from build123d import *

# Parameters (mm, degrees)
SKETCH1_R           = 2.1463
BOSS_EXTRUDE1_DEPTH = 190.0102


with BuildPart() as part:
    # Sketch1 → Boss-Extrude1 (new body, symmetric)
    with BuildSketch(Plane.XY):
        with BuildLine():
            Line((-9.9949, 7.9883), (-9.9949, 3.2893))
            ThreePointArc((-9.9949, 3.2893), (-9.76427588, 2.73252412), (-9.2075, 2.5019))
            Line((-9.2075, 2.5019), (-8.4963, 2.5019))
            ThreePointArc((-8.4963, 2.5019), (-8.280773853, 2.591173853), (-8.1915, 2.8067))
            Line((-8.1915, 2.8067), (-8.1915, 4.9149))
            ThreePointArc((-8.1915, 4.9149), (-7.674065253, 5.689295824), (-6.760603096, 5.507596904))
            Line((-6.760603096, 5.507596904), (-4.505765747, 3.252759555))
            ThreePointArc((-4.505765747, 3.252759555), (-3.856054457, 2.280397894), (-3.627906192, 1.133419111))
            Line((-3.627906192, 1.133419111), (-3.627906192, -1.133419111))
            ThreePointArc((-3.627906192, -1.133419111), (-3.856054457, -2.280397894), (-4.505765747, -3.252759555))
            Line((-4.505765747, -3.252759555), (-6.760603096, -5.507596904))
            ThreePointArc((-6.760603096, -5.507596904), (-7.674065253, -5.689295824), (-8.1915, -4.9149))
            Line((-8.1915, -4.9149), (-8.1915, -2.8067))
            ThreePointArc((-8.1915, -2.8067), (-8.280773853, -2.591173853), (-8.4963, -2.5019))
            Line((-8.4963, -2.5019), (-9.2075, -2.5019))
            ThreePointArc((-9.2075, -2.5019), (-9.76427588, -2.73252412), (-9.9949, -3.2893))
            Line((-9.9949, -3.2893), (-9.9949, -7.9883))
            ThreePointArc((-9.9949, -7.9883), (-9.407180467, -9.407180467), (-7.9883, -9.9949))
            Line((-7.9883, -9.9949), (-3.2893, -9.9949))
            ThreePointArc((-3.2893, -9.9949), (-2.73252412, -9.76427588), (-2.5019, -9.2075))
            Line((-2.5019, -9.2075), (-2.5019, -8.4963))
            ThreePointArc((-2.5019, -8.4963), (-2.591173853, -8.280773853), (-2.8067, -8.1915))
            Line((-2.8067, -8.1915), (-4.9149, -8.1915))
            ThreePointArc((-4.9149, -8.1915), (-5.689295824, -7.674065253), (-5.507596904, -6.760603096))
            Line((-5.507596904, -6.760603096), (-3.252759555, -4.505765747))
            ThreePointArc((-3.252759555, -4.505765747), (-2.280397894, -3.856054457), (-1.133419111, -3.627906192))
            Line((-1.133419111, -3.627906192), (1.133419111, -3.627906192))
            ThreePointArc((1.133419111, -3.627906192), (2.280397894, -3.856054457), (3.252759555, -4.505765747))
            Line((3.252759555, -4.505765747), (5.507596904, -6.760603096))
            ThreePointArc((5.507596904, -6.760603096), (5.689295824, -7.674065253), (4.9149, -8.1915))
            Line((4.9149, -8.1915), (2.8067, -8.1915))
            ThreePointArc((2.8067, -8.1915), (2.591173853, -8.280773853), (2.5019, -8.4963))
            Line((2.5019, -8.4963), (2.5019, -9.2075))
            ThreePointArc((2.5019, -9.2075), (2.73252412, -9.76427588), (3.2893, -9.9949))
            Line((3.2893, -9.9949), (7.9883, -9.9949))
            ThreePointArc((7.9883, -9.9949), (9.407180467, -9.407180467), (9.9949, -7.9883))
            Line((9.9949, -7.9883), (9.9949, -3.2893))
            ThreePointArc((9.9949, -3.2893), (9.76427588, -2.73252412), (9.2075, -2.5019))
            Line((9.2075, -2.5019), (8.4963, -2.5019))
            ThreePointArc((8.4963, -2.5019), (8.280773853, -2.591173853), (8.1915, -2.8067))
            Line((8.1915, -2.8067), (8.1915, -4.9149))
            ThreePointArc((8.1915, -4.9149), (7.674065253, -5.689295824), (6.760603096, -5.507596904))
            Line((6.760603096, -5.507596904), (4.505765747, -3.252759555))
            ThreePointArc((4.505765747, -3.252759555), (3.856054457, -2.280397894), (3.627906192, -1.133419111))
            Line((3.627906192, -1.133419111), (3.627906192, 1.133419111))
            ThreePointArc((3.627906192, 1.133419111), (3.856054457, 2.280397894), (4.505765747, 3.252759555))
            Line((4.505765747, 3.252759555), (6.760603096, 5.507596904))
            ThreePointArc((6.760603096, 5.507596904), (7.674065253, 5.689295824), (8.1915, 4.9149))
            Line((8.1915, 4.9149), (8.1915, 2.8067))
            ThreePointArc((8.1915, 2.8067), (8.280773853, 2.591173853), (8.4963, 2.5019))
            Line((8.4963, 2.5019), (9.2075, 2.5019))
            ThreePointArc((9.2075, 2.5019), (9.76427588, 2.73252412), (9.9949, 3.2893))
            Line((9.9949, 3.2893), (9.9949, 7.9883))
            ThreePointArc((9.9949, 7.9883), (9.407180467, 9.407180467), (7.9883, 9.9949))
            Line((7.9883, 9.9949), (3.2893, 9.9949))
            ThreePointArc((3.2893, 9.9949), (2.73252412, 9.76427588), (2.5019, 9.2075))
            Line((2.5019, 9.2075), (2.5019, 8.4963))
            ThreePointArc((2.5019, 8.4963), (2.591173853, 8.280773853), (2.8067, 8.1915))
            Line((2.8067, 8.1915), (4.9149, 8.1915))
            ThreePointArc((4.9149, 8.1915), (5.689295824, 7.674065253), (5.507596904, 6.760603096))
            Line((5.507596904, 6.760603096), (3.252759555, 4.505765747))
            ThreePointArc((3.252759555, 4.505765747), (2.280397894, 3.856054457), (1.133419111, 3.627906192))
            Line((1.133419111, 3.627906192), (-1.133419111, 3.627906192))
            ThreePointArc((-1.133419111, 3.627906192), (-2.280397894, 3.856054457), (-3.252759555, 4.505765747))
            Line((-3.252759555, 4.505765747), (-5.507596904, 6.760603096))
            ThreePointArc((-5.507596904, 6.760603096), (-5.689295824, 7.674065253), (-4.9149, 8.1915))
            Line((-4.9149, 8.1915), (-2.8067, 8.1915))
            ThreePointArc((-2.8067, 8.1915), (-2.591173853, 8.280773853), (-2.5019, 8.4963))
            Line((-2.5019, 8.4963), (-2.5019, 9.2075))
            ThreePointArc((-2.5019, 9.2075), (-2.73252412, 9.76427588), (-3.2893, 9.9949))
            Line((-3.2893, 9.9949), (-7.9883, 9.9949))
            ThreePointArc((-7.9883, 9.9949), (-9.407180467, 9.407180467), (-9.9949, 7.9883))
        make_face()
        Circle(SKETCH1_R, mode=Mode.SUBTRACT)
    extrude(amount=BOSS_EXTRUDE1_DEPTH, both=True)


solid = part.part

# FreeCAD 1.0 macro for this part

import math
import FreeCAD as App
import Part
import Sketcher

V = App.Vector
Q = App.Units.Quantity

doc = App.newDocument("Part")
body = doc.addObject("PartDesign::Body", "Body")

sketch1 = body.newObject("Sketcher::SketchObject", "Sketch")
sketch1.AttachmentSupport = (doc.getObject("XY_Plane"), [""])
sketch1.MapMode = "FlatFace"
sketch1.addGeometry([
    Part.LineSegment(V(-9.99, 7.99, 0), V(-9.99, 3.29, 0)),
    Part.ArcOfCircle(Part.Circle(V(-9.21, 3.29, 0), V(0, 0, 1), 0.79), math.radians(180), math.radians(270)),
    Part.LineSegment(V(-9.21, 2.5, 0), V(-8.5, 2.5, 0)),
    Part.ArcOfCircle(Part.Circle(V(-8.5, 2.81, 0), V(0, 0, 1), 0.3), math.radians(-90), math.radians(0)),
    Part.LineSegment(V(-8.19, 2.81, 0), V(-8.19, 4.91, 0)),
    Part.ArcOfCircle(Part.Circle(V(-7.35, 4.91, 0), V(0, 0, 1), 0.84), math.radians(45), math.radians(180)),
    Part.LineSegment(V(-6.76, 5.51, 0), V(-4.51, 3.25, 0)),
    Part.ArcOfCircle(Part.Circle(V(-6.63, 1.13, 0), V(0, 0, 1), 3), math.radians(0), math.radians(45)),
    Part.LineSegment(V(-3.63, 1.13, 0), V(-3.63, -1.13, 0)),
    Part.ArcOfCircle(Part.Circle(V(-6.63, -1.13, 0), V(0, 0, 1), 3), math.radians(-45), math.radians(0)),
    Part.LineSegment(V(-4.51, -3.25, 0), V(-6.76, -5.51, 0)),
    Part.ArcOfCircle(Part.Circle(V(-7.35, -4.91, 0), V(0, 0, 1), 0.84), math.radians(180), math.radians(315)),
    Part.LineSegment(V(-8.19, -4.91, 0), V(-8.19, -2.81, 0)),
    Part.ArcOfCircle(Part.Circle(V(-8.5, -2.81, 0), V(0, 0, 1), 0.3), math.radians(0), math.radians(90)),
    Part.LineSegment(V(-8.5, -2.5, 0), V(-9.21, -2.5, 0)),
    Part.ArcOfCircle(Part.Circle(V(-9.21, -3.29, 0), V(0, 0, 1), 0.79), math.radians(90), math.radians(180)),
    Part.LineSegment(V(-9.99, -3.29, 0), V(-9.99, -7.99, 0)),
    Part.ArcOfCircle(Part.Circle(V(-7.99, -7.99, 0), V(0, 0, 1), 2.01), math.radians(180), math.radians(270)),
    Part.LineSegment(V(-7.99, -9.99, 0), V(-3.29, -9.99, 0)),
    Part.ArcOfCircle(Part.Circle(V(-3.29, -9.21, 0), V(0, 0, 1), 0.79), math.radians(-90), math.radians(0)),
    Part.LineSegment(V(-2.5, -9.21, 0), V(-2.5, -8.5, 0)),
    Part.ArcOfCircle(Part.Circle(V(-2.81, -8.5, 0), V(0, 0, 1), 0.3), math.radians(0), math.radians(90)),
    Part.LineSegment(V(-2.81, -8.19, 0), V(-4.91, -8.19, 0)),
    Part.ArcOfCircle(Part.Circle(V(-4.91, -7.35, 0), V(0, 0, 1), 0.84), math.radians(135), math.radians(270)),
    Part.LineSegment(V(-5.51, -6.76, 0), V(-3.25, -4.51, 0)),
    Part.ArcOfCircle(Part.Circle(V(-1.13, -6.63, 0), V(0, 0, 1), 3), math.radians(90), math.radians(135)),
    Part.LineSegment(V(-1.13, -3.63, 0), V(1.13, -3.63, 0)),
    Part.ArcOfCircle(Part.Circle(V(1.13, -6.63, 0), V(0, 0, 1), 3), math.radians(45), math.radians(90)),
    Part.LineSegment(V(3.25, -4.51, 0), V(5.51, -6.76, 0)),
    Part.ArcOfCircle(Part.Circle(V(4.91, -7.35, 0), V(0, 0, 1), 0.84), math.radians(-90), math.radians(45)),
    Part.LineSegment(V(4.91, -8.19, 0), V(2.81, -8.19, 0)),
    Part.ArcOfCircle(Part.Circle(V(2.81, -8.5, 0), V(0, 0, 1), 0.3), math.radians(90), math.radians(180)),
    Part.LineSegment(V(2.5, -8.5, 0), V(2.5, -9.21, 0)),
    Part.ArcOfCircle(Part.Circle(V(3.29, -9.21, 0), V(0, 0, 1), 0.79), math.radians(180), math.radians(270)),
    Part.LineSegment(V(3.29, -9.99, 0), V(7.99, -9.99, 0)),
    Part.ArcOfCircle(Part.Circle(V(7.99, -7.99, 0), V(0, 0, 1), 2.01), math.radians(-90), math.radians(0)),
    Part.LineSegment(V(9.99, -7.99, 0), V(9.99, -3.29, 0)),
    Part.ArcOfCircle(Part.Circle(V(9.21, -3.29, 0), V(0, 0, 1), 0.79), math.radians(0), math.radians(90)),
    Part.LineSegment(V(9.21, -2.5, 0), V(8.5, -2.5, 0)),
    Part.ArcOfCircle(Part.Circle(V(8.5, -2.81, 0), V(0, 0, 1), 0.3), math.radians(90), math.radians(180)),
    Part.LineSegment(V(8.19, -2.81, 0), V(8.19, -4.91, 0)),
    Part.ArcOfCircle(Part.Circle(V(7.35, -4.91, 0), V(0, 0, 1), 0.84), math.radians(-135), math.radians(0)),
    Part.LineSegment(V(6.76, -5.51, 0), V(4.51, -3.25, 0)),
    Part.ArcOfCircle(Part.Circle(V(6.63, -1.13, 0), V(0, 0, 1), 3), math.radians(180), math.radians(225)),
    Part.LineSegment(V(3.63, -1.13, 0), V(3.63, 1.13, 0)),
    Part.ArcOfCircle(Part.Circle(V(6.63, 1.13, 0), V(0, 0, 1), 3), math.radians(135), math.radians(180)),
    Part.LineSegment(V(4.51, 3.25, 0), V(6.76, 5.51, 0)),
    Part.ArcOfCircle(Part.Circle(V(7.35, 4.91, 0), V(0, 0, 1), 0.84), math.radians(0), math.radians(135)),
    Part.LineSegment(V(8.19, 4.91, 0), V(8.19, 2.81, 0)),
    Part.ArcOfCircle(Part.Circle(V(8.5, 2.81, 0), V(0, 0, 1), 0.3), math.radians(180), math.radians(270)),
    Part.LineSegment(V(8.5, 2.5, 0), V(9.21, 2.5, 0)),
    Part.ArcOfCircle(Part.Circle(V(9.21, 3.29, 0), V(0, 0, 1), 0.79), math.radians(-90), math.radians(0)),
    Part.LineSegment(V(9.99, 3.29, 0), V(9.99, 7.99, 0)),
    Part.ArcOfCircle(Part.Circle(V(7.99, 7.99, 0), V(0, 0, 1), 2.01), math.radians(0), math.radians(90)),
    Part.LineSegment(V(7.99, 9.99, 0), V(3.29, 9.99, 0)),
    Part.ArcOfCircle(Part.Circle(V(3.29, 9.21, 0), V(0, 0, 1), 0.79), math.radians(90), math.radians(180)),
    Part.LineSegment(V(2.5, 9.21, 0), V(2.5, 8.5, 0)),
    Part.ArcOfCircle(Part.Circle(V(2.81, 8.5, 0), V(0, 0, 1), 0.3), math.radians(180), math.radians(270)),
    Part.LineSegment(V(2.81, 8.19, 0), V(4.91, 8.19, 0)),
    Part.ArcOfCircle(Part.Circle(V(4.91, 7.35, 0), V(0, 0, 1), 0.84), math.radians(-45), math.radians(90)),
    Part.LineSegment(V(5.51, 6.76, 0), V(3.25, 4.51, 0)),
    Part.ArcOfCircle(Part.Circle(V(1.13, 6.63, 0), V(0, 0, 1), 3), math.radians(-90), math.radians(-45)),
    Part.LineSegment(V(1.13, 3.63, 0), V(-1.13, 3.63, 0)),
    Part.ArcOfCircle(Part.Circle(V(-1.13, 6.63, 0), V(0, 0, 1), 3), math.radians(-135), math.radians(-90)),
    Part.LineSegment(V(-3.25, 4.51, 0), V(-5.51, 6.76, 0)),
    Part.ArcOfCircle(Part.Circle(V(-4.91, 7.35, 0), V(0, 0, 1), 0.84), math.radians(90), math.radians(225)),
    Part.LineSegment(V(-4.91, 8.19, 0), V(-2.81, 8.19, 0)),
    Part.ArcOfCircle(Part.Circle(V(-2.81, 8.5, 0), V(0, 0, 1), 0.3), math.radians(-90), math.radians(0)),
    Part.LineSegment(V(-2.5, 8.5, 0), V(-2.5, 9.21, 0)),
    Part.ArcOfCircle(Part.Circle(V(-3.29, 9.21, 0), V(0, 0, 1), 0.79), math.radians(0), math.radians(90)),
    Part.LineSegment(V(-3.29, 9.99, 0), V(-7.99, 9.99, 0)),
    Part.ArcOfCircle(Part.Circle(V(-7.99, 7.99, 0), V(0, 0, 1), 2.01), math.radians(90), math.radians(180)),
    Part.Circle(V(0, 0, 0), V(0, 0, 1), 2.15),
], False)
sketch1.addConstraint([
    Sketcher.Constraint("Tangent", 0, 2, 1, 1),
    Sketcher.Constraint("Tangent", 1, 2, 2, 1),
    Sketcher.Constraint("Tangent", 2, 2, 3, 1),
    Sketcher.Constraint("Tangent", 3, 2, 4, 1),
    Sketcher.Constraint("Tangent", 4, 2, 5, 2),
    Sketcher.Constraint("Tangent", 5, 1, 6, 1),
    Sketcher.Constraint("Tangent", 6, 2, 7, 2),
    Sketcher.Constraint("Tangent", 7, 1, 8, 1),
    Sketcher.Constraint("Tangent", 8, 2, 9, 2),
    Sketcher.Constraint("Tangent", 9, 1, 10, 1),
    Sketcher.Constraint("Tangent", 10, 2, 11, 2),
    Sketcher.Constraint("Tangent", 11, 1, 12, 1),
    Sketcher.Constraint("Tangent", 12, 2, 13, 1),
    Sketcher.Constraint("Tangent", 13, 2, 14, 1),
    Sketcher.Constraint("Tangent", 14, 2, 15, 1),
    Sketcher.Constraint("Tangent", 15, 2, 16, 1),
    Sketcher.Constraint("Tangent", 16, 2, 17, 1),
    Sketcher.Constraint("Tangent", 17, 2, 18, 1),
    Sketcher.Constraint("Tangent", 18, 2, 19, 1),
    Sketcher.Constraint("Tangent", 19, 2, 20, 1),
    Sketcher.Constraint("Tangent", 20, 2, 21, 1),
    Sketcher.Constraint("Tangent", 21, 2, 22, 1),
    Sketcher.Constraint("Tangent", 22, 2, 23, 2),
    Sketcher.Constraint("Tangent", 23, 1, 24, 1),
    Sketcher.Constraint("Tangent", 24, 2, 25, 2),
    Sketcher.Constraint("Tangent", 25, 1, 26, 1),
    Sketcher.Constraint("Tangent", 26, 2, 27, 2),
    Sketcher.Constraint("Tangent", 27, 1, 28, 1),
    Sketcher.Constraint("Tangent", 28, 2, 29, 2),
    Sketcher.Constraint("Tangent", 29, 1, 30, 1),
    Sketcher.Constraint("Tangent", 30, 2, 31, 1),
    Sketcher.Constraint("Tangent", 31, 2, 32, 1),
    Sketcher.Constraint("Tangent", 32, 2, 33, 1),
    Sketcher.Constraint("Tangent", 33, 2, 34, 1),
    Sketcher.Constraint("Tangent", 34, 2, 35, 1),
    Sketcher.Constraint("Tangent", 35, 2, 36, 1),
    Sketcher.Constraint("Tangent", 36, 2, 37, 1),
    Sketcher.Constraint("Tangent", 37, 2, 38, 1),
    Sketcher.Constraint("Tangent", 38, 2, 39, 1),
    Sketcher.Constraint("Tangent", 39, 2, 40, 1),
    Sketcher.Constraint("Tangent", 40, 2, 41, 2),
    Sketcher.Constraint("Tangent", 41, 1, 42, 1),
    Sketcher.Constraint("Tangent", 42, 2, 43, 2),
    Sketcher.Constraint("Tangent", 43, 1, 44, 1),
    Sketcher.Constraint("Tangent", 44, 2, 45, 2),
    Sketcher.Constraint("Tangent", 45, 1, 46, 1),
    Sketcher.Constraint("Tangent", 46, 2, 47, 2),
    Sketcher.Constraint("Tangent", 47, 1, 48, 1),
    Sketcher.Constraint("Tangent", 48, 2, 49, 1),
    Sketcher.Constraint("Tangent", 49, 2, 50, 1),
    Sketcher.Constraint("Tangent", 50, 2, 51, 1),
    Sketcher.Constraint("Tangent", 51, 2, 52, 1),
    Sketcher.Constraint("Tangent", 52, 2, 53, 1),
    Sketcher.Constraint("Tangent", 53, 2, 54, 1),
    Sketcher.Constraint("Tangent", 54, 2, 55, 1),
    Sketcher.Constraint("Tangent", 55, 2, 56, 1),
    Sketcher.Constraint("Tangent", 56, 2, 57, 1),
    Sketcher.Constraint("Tangent", 57, 2, 58, 1),
    Sketcher.Constraint("Tangent", 58, 2, 59, 2),
    Sketcher.Constraint("Tangent", 59, 1, 60, 1),
    Sketcher.Constraint("Tangent", 60, 2, 61, 2),
    Sketcher.Constraint("Tangent", 61, 1, 62, 1),
    Sketcher.Constraint("Tangent", 62, 2, 63, 2),
    Sketcher.Constraint("Tangent", 63, 1, 64, 1),
    Sketcher.Constraint("Tangent", 64, 2, 65, 2),
    Sketcher.Constraint("Tangent", 65, 1, 66, 1),
    Sketcher.Constraint("Tangent", 66, 2, 67, 1),
    Sketcher.Constraint("Tangent", 67, 2, 68, 1),
    Sketcher.Constraint("Tangent", 68, 2, 69, 1),
    Sketcher.Constraint("Tangent", 69, 2, 70, 1),
    Sketcher.Constraint("Tangent", 70, 2, 71, 1),
    Sketcher.Constraint("Tangent", 71, 2, 0, 1),
    Sketcher.Constraint("Vertical", 0),
    Sketcher.Constraint("Horizontal", 2),
    Sketcher.Constraint("Vertical", 4),
    Sketcher.Constraint("Vertical", 8),
    Sketcher.Constraint("Vertical", 12),
    Sketcher.Constraint("Horizontal", 14),
    Sketcher.Constraint("Vertical", 16),
    Sketcher.Constraint("Horizontal", 18),
    Sketcher.Constraint("Vertical", 20),
    Sketcher.Constraint("Horizontal", 22),
    Sketcher.Constraint("Horizontal", 26),
    Sketcher.Constraint("Horizontal", 30),
    Sketcher.Constraint("Vertical", 32),
    Sketcher.Constraint("Horizontal", 34),
    Sketcher.Constraint("Vertical", 36),
    Sketcher.Constraint("Horizontal", 38),
    Sketcher.Constraint("Vertical", 40),
    Sketcher.Constraint("Vertical", 44),
    Sketcher.Constraint("Vertical", 48),
    Sketcher.Constraint("Horizontal", 50),
    Sketcher.Constraint("Vertical", 52),
    Sketcher.Constraint("Horizontal", 54),
    Sketcher.Constraint("Vertical", 56),
    Sketcher.Constraint("Horizontal", 58),
    Sketcher.Constraint("Horizontal", 62),
    Sketcher.Constraint("Horizontal", 66),
    Sketcher.Constraint("Vertical", 68),
    Sketcher.Constraint("Horizontal", 70),
    Sketcher.Constraint("Coincident", 72, 3, -1, 1),
    Sketcher.Constraint("Equal", 7, 9),
    Sketcher.Constraint("Equal", 5, 11),
    Sketcher.Constraint("Equal", 3, 13),
    Sketcher.Constraint("Equal", 1, 15),
    Sketcher.Constraint("Equal", 15, 19),
    Sketcher.Constraint("Equal", 13, 21),
    Sketcher.Constraint("Equal", 11, 23),
    Sketcher.Constraint("Equal", 9, 25),
    Sketcher.Constraint("Equal", 25, 27),
    Sketcher.Constraint("Equal", 23, 29),
    Sketcher.Constraint("Equal", 21, 31),
    Sketcher.Constraint("Equal", 19, 33),
    Sketcher.Constraint("Equal", 17, 35),
    Sketcher.Constraint("Equal", 33, 37),
    Sketcher.Constraint("Equal", 31, 39),
    Sketcher.Constraint("Equal", 29, 41),
    Sketcher.Constraint("Equal", 27, 43),
    Sketcher.Constraint("Equal", 43, 45),
    Sketcher.Constraint("Equal", 41, 47),
    Sketcher.Constraint("Equal", 39, 49),
    Sketcher.Constraint("Equal", 37, 51),
    Sketcher.Constraint("Equal", 35, 53),
    Sketcher.Constraint("Equal", 51, 55),
    Sketcher.Constraint("Equal", 49, 57),
    Sketcher.Constraint("Equal", 47, 59),
    Sketcher.Constraint("Equal", 45, 61),
    Sketcher.Constraint("Equal", 61, 63),
    Sketcher.Constraint("Equal", 59, 65),
    Sketcher.Constraint("Equal", 57, 67),
    Sketcher.Constraint("Equal", 55, 69),
    Sketcher.Constraint("Equal", 53, 71),
    Sketcher.Constraint("Symmetric", 1, 3, 37, 3, -1, 1),
    Sketcher.Constraint("Symmetric", 5, 3, 41, 3, -1, 1),
    Sketcher.Constraint("Symmetric", 7, 3, 43, 3, -1, 1),
    Sketcher.Constraint("Symmetric", 11, 3, 47, 3, -1, 1),
    Sketcher.Constraint("Symmetric", 15, 3, 51, 3, -1, 1),
    Sketcher.Constraint("Symmetric", 19, 3, 55, 3, -1, 1),
    Sketcher.Constraint("Symmetric", 23, 3, 59, 3, -1, 1),
    Sketcher.Constraint("Symmetric", 25, 3, 61, 3, -1, 1),
    Sketcher.Constraint("Symmetric", 29, 3, 65, 3, -1, 1),
    Sketcher.Constraint("Symmetric", 33, 3, 69, 3, -1, 1),
    Sketcher.Constraint("Symmetric", 23, 3, 29, 3, -2),
    Sketcher.Constraint("Symmetric", 19, 3, 33, 3, -2),
    Sketcher.Constraint("Symmetric", 15, 3, 37, 3, -2),
    Sketcher.Constraint("Symmetric", 11, 3, 41, 3, -2),
    Sketcher.Constraint("Perpendicular", 6, 10),
    Sketcher.Constraint("Parallel", 10, 24),
    Sketcher.Constraint("Perpendicular", 24, 28),
    Sketcher.Constraint("Perpendicular", 42, 46),
    Sketcher.Constraint("Perpendicular", 60, 64),
    Sketcher.Constraint("Horizontal", 9, 3, 43, 3),
    Sketcher.Constraint("Equal", 70, 0),
    Sketcher.Constraint("Equal", 66, 4),
    Sketcher.Constraint("Equal", 62, 8),
    Sketcher.Constraint("Equal", 50, 20),
    Sketcher.Constraint("Equal", 10, 24),
    Sketcher.Constraint("Diameter", 72, Q("0.169 in")),
    Sketcher.Constraint("Radius", 1, Q("0.031 in")),
    Sketcher.Constraint("Radius", 3, Q("0.012 in")),
    Sketcher.Constraint("Radius", 5, Q("0.033 in")),
    Sketcher.Constraint("Radius", 7, Q("0.118 in")),
    Sketcher.Constraint("Radius", 17, Q("0.079 in")),
    Sketcher.Constraint("DistanceX", 2, 1, 2, 2, Q("0.028 in")),
    Sketcher.Constraint("DistanceX", 18, 1, 18, 2, Q("0.185 in")),
    Sketcher.Constraint("DistanceX", 22, 2, 22, 1, Q("0.083 in")),
    Sketcher.Constraint("DistanceX", 1, 3, -1, 1, Q("0.3625 in")),
    Sketcher.Constraint("DistanceX", 26, 1, 26, 2, 2.266838),
])
pad1 = body.newObject("PartDesign::Pad", "Pad")
pad1.Profile = sketch1
pad1.Length = 380.0204
pad1.Midplane = True

doc.recompute()
